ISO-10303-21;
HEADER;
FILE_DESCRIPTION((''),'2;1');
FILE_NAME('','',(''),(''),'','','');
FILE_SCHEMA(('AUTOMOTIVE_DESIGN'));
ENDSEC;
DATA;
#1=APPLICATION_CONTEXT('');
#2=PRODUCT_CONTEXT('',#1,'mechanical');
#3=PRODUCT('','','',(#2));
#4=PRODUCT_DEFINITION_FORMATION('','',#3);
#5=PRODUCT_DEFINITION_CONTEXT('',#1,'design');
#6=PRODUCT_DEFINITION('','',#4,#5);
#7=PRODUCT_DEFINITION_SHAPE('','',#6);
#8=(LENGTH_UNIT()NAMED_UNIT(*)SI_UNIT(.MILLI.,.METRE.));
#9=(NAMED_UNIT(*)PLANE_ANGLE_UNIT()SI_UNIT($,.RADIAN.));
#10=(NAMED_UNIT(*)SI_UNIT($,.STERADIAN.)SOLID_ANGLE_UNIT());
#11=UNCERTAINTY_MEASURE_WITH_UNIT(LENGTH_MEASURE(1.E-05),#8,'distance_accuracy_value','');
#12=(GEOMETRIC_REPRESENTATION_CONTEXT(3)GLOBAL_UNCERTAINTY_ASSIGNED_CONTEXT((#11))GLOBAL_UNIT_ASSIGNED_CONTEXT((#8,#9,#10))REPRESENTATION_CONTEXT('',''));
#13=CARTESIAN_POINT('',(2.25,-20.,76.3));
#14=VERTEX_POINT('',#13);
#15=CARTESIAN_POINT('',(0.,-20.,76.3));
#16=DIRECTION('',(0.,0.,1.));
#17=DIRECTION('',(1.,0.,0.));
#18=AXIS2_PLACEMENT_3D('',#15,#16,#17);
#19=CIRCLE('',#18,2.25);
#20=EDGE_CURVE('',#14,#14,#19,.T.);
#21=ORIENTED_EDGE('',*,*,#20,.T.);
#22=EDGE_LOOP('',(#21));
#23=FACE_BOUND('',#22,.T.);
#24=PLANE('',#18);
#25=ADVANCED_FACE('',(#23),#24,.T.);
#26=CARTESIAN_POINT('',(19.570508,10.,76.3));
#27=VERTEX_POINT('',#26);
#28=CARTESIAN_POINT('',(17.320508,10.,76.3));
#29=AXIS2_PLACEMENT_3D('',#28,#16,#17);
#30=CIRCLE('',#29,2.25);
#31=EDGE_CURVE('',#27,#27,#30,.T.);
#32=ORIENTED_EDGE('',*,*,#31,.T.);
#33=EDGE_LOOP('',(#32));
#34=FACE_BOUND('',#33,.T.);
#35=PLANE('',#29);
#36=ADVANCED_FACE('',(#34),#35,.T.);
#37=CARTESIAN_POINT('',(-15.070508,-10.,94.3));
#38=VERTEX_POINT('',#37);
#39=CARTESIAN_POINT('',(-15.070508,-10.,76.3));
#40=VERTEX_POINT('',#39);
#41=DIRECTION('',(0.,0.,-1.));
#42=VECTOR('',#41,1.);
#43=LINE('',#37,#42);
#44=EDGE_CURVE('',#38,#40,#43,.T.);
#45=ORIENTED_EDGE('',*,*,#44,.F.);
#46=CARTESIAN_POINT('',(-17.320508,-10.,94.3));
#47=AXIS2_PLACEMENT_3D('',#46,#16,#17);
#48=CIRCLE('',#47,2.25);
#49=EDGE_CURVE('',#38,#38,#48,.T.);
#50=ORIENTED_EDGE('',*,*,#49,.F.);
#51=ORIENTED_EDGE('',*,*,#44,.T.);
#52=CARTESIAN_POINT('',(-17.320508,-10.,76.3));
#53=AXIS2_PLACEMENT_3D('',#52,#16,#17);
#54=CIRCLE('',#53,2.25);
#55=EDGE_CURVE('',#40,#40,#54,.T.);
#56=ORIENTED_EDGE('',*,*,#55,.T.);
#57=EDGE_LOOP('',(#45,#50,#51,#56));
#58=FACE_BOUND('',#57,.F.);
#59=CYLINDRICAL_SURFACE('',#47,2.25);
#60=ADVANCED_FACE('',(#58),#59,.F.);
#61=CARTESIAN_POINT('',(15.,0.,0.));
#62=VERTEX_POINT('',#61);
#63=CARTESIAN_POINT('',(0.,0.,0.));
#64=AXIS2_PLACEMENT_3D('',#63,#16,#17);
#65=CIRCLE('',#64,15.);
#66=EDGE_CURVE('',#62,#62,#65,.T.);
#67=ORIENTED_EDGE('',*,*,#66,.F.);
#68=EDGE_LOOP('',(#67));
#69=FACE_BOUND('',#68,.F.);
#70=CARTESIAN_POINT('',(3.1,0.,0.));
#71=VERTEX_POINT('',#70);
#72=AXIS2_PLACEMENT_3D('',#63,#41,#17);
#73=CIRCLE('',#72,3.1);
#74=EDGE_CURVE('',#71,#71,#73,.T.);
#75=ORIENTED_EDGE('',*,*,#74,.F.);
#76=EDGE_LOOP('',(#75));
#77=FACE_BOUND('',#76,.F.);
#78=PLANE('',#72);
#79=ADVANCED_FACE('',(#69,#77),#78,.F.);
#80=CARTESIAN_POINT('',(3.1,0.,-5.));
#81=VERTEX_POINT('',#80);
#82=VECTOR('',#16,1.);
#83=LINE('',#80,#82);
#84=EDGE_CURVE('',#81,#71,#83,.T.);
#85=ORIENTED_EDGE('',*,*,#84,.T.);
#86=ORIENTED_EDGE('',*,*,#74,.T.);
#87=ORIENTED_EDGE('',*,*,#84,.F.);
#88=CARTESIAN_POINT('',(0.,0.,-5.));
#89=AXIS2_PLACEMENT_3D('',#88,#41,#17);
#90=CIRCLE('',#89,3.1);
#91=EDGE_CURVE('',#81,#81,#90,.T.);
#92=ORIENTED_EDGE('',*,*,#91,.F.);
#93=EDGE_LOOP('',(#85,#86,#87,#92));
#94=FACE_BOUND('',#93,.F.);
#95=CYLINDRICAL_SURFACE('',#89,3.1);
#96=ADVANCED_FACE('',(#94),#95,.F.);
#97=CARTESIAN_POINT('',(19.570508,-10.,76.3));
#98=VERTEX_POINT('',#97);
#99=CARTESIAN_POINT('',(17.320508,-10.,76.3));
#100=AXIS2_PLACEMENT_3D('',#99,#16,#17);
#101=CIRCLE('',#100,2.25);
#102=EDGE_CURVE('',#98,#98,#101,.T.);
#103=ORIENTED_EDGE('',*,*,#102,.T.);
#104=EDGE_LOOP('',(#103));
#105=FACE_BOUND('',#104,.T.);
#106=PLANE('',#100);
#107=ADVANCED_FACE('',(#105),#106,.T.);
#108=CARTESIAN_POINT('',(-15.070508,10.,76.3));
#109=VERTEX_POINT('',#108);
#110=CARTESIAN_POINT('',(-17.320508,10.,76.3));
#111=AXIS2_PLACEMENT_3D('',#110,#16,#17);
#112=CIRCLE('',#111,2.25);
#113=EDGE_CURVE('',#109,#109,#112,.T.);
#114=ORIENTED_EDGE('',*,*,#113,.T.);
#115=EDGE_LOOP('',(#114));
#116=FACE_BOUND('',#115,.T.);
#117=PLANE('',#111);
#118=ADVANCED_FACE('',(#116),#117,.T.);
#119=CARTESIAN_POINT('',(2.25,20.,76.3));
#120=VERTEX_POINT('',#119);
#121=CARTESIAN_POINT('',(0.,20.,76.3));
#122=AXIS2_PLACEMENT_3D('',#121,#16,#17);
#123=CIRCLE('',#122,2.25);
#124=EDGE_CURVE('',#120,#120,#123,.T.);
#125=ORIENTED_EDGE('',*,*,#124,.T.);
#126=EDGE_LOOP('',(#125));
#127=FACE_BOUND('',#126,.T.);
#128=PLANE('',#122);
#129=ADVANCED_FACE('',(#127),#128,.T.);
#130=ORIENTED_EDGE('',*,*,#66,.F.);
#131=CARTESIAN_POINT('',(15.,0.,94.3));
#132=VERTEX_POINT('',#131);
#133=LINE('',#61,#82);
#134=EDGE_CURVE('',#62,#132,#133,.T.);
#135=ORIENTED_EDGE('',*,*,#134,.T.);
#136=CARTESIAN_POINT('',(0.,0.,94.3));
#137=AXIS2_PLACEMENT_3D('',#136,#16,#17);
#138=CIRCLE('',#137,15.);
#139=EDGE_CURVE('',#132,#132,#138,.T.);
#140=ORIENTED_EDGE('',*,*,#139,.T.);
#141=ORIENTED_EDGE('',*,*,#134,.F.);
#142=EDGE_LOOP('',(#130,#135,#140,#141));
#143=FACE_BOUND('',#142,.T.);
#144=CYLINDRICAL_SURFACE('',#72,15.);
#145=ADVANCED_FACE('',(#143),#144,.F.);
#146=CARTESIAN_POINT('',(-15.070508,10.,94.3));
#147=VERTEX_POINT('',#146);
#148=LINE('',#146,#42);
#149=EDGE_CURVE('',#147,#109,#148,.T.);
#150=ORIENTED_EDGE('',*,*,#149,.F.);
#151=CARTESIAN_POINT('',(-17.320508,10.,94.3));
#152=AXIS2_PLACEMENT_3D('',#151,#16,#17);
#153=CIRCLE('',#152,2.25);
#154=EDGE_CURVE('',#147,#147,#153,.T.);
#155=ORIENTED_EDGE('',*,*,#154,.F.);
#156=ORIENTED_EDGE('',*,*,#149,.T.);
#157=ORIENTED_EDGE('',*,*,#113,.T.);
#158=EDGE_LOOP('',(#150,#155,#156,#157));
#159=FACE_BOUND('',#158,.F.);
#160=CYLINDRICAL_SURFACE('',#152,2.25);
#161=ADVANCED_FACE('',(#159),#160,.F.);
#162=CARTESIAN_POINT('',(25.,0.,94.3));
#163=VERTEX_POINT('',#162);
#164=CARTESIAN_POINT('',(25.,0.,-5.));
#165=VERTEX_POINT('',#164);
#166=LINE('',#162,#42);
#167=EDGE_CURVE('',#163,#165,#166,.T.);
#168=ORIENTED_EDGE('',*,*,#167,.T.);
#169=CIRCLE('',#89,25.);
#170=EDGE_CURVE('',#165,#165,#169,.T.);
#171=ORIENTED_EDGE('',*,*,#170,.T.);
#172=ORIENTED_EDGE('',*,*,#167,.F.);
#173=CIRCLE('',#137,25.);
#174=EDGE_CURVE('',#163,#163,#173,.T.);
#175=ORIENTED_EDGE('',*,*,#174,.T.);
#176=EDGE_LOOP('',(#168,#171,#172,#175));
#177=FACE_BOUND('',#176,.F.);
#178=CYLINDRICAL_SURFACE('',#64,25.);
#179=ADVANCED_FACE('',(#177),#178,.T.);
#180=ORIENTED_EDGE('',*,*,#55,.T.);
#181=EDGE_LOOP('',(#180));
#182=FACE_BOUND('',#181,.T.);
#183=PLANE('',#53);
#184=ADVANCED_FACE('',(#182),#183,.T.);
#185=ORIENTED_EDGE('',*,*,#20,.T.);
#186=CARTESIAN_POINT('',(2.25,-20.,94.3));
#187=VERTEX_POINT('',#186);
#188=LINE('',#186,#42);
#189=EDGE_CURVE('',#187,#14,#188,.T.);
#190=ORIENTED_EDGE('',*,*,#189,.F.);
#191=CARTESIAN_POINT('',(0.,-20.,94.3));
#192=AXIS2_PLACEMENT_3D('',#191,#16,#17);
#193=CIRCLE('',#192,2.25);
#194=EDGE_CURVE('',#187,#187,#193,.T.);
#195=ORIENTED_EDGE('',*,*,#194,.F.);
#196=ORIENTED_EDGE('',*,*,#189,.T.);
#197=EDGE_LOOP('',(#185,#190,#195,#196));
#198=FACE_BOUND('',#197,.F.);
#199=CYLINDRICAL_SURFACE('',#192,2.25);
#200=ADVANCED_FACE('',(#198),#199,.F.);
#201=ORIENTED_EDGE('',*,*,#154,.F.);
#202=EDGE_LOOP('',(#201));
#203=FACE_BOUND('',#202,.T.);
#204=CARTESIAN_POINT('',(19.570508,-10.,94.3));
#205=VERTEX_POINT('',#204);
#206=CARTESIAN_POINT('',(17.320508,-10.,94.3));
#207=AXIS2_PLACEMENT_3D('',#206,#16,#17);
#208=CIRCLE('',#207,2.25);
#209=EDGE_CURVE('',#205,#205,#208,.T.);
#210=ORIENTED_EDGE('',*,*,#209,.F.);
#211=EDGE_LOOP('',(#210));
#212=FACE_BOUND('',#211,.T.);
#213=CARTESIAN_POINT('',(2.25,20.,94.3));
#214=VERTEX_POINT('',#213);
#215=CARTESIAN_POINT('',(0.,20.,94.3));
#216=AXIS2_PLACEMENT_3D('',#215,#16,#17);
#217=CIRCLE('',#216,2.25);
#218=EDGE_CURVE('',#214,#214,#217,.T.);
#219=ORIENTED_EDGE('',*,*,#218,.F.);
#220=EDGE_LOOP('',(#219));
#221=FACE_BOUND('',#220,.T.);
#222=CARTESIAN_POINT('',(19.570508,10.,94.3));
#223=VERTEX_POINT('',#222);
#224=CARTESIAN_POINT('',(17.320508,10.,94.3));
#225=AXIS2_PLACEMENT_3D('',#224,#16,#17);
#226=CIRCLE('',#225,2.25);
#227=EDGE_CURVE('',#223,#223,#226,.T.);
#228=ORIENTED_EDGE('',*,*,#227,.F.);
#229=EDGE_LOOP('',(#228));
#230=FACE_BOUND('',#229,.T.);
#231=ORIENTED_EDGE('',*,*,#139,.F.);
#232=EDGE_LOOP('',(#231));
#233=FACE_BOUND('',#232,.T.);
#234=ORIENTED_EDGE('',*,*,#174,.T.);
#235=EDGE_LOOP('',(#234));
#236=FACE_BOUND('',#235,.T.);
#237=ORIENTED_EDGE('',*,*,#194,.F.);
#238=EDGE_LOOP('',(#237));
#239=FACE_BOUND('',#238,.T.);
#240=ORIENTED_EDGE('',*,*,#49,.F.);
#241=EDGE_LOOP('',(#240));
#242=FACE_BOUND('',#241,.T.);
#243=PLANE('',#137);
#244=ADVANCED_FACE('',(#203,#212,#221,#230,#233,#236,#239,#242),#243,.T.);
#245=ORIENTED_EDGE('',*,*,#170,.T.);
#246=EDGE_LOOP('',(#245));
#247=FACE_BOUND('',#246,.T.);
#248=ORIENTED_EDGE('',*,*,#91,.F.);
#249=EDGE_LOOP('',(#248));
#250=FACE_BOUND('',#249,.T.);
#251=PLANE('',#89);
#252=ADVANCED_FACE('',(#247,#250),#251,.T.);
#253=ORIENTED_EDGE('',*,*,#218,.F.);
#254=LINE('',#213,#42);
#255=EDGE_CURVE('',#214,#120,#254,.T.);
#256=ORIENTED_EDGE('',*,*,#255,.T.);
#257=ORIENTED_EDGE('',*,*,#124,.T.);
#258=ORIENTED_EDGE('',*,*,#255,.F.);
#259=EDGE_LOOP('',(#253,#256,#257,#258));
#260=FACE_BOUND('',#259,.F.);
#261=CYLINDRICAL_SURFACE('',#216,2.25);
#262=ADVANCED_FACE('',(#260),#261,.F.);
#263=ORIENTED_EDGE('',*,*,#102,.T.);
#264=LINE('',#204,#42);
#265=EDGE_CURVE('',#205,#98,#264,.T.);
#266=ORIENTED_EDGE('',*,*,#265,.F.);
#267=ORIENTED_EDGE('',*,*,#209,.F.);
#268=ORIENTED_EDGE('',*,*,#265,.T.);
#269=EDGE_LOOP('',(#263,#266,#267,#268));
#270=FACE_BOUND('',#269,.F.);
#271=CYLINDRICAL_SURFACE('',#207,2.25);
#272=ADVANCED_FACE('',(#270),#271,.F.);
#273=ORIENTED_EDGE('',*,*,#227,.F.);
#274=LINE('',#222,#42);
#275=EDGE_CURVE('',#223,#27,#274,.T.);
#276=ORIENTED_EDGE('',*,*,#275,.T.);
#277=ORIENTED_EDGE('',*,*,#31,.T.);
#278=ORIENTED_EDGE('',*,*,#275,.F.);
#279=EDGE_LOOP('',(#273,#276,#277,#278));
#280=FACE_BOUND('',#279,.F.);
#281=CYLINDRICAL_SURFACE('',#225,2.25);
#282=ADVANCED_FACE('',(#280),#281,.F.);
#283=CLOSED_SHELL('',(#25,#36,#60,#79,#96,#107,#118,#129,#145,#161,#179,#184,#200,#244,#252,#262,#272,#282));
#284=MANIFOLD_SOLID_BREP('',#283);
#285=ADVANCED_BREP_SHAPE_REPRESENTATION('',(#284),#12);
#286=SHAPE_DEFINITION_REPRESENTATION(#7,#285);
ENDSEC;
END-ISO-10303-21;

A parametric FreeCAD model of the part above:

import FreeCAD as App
import Part
import Sketcher
Q = App.Units.Quantity

doc = App.newDocument("Part")
body = doc.addObject("PartDesign::Body", "Body")

# Sketch on XY plane
sketch1 = body.newObject("Sketcher::SketchObject", "Sketch")
sketch1.AttachmentSupport = (doc.getObject("XY_Plane"), [""])
sketch1.MapMode = "FlatFace"
sketch1.addGeometry([
    Part.Circle(App.Vector(0, 0, 0), App.Vector(0, 0, 1), 25),
    Part.Circle(App.Vector(0, 0, 0), App.Vector(0, 0, 1), 15),
], False)
sketch1.addConstraint([
    Sketcher.Constraint("Coincident", 0, 3, -1, 1),
    Sketcher.Constraint("Coincident", 1, 3, -1, 1),
    Sketcher.Constraint("Diameter", 0, Q("50 mm")),
    Sketcher.Constraint("Diameter", 1, Q("30 mm")),
])
pad1 = body.newObject("PartDesign::Pad", "Pad")
pad1.Profile = sketch1
pad1.Length = 94.3

# Sketch on XY plane
sketch2 = body.newObject("Sketcher::SketchObject", "Sketch001")
sketch2.AttachmentSupport = (doc.getObject("XY_Plane"), [""])
sketch2.MapMode = "FlatFace"
sketch2.AttachmentOffset = App.Placement(App.Vector(0, 0, 94.3), App.Rotation())
sketch2.addGeometry([
    Part.Circle(App.Vector(0, 20, 0), App.Vector(0, 0, 1), 2.2),  # 0
    Part.Circle(App.Vector(-17.3, -10, 0), App.Vector(0, 0, 1), 2.2),  # 1
    Part.Circle(App.Vector(17.3, -10, 0), App.Vector(0, 0, 1), 2.2),  # 2
    Part.Circle(App.Vector(0, -20, 0), App.Vector(0, 0, 1), 2.2),  # 3
    Part.Circle(App.Vector(17.3, 10, 0), App.Vector(0, 0, 1), 2.2),  # 4
    Part.Circle(App.Vector(-17.3, 10, 0), App.Vector(0, 0, 1), 2.2),  # 5
], False)
sketch2.addConstraint([
    Sketcher.Constraint("Equal", 0, 1),
    Sketcher.Constraint("Equal", 1, 2),
    Sketcher.Constraint("Equal", 2, 3),
    Sketcher.Constraint("Equal", 3, 4),
    Sketcher.Constraint("Equal", 4, 5),
    Sketcher.Constraint("Symmetric", 0, 3, 3, 3, -1, 1),
    Sketcher.Constraint("Symmetric", 1, 3, 4, 3, -1, 1),
    Sketcher.Constraint("Symmetric", 2, 3, 5, 3, -1, 1),
    Sketcher.Constraint("Symmetric", 1, 3, 2, 3, -2),
    Sketcher.Constraint("PointOnObject", 0, 3, -2),
    Sketcher.Constraint("Diameter", 0, Q("4.5 mm")),
    Sketcher.Constraint("DistanceY", -1, 1, 0, 3, Q("20 mm")),
    Sketcher.Constraint("DistanceY", 1, 3, -1, 1, Q("10 mm")),
    Sketcher.Constraint("DistanceX", 1, 3, -1, 1, Q("17.320508 mm")),
])
pocket1 = body.newObject("PartDesign::Pocket", "Pocket")
pocket1.Profile = sketch2
pocket1.Length = 18

# Sketch on XY plane
sketch3 = body.newObject("Sketcher::SketchObject", "Sketch002")
sketch3.AttachmentSupport = (doc.getObject("XY_Plane"), [""])
sketch3.MapMode = "FlatFace"
sketch3.addGeometry(Part.Circle(App.Vector(0, 0, 0), App.Vector(0, 0, 1), 25), False)
sketch3.addConstraint([
    Sketcher.Constraint("Coincident", 0, 3, -1, 1),
    Sketcher.Constraint("Diameter", 0, Q("50 mm")),
])
pad2 = body.newObject("PartDesign::Pad", "Pad001")
pad2.Profile = sketch3
pad2.Length = 5
pad2.Reversed = True

# Sketch on XY plane
sketch4 = body.newObject("Sketcher::SketchObject", "Sketch003")
sketch4.AttachmentSupport = (doc.getObject("XY_Plane"), [""])
sketch4.MapMode = "FlatFace"
sketch4.AttachmentOffset = App.Placement(App.Vector(0, 0, -5), App.Rotation())
sketch4.addGeometry(Part.Circle(App.Vector(0, 0, 0), App.Vector(0, 0, 1), 3.1), False)
sketch4.addConstraint([
    Sketcher.Constraint("Coincident", 0, 3, -1, 1),
    Sketcher.Constraint("Diameter", 0, Q("6.2 mm")),
])
pocket2 = body.newObject("PartDesign::Pocket", "Pocket001")
pocket2.Profile = sketch4
pocket2.Length = 25
pocket2.Reversed = True

doc.recompute()
